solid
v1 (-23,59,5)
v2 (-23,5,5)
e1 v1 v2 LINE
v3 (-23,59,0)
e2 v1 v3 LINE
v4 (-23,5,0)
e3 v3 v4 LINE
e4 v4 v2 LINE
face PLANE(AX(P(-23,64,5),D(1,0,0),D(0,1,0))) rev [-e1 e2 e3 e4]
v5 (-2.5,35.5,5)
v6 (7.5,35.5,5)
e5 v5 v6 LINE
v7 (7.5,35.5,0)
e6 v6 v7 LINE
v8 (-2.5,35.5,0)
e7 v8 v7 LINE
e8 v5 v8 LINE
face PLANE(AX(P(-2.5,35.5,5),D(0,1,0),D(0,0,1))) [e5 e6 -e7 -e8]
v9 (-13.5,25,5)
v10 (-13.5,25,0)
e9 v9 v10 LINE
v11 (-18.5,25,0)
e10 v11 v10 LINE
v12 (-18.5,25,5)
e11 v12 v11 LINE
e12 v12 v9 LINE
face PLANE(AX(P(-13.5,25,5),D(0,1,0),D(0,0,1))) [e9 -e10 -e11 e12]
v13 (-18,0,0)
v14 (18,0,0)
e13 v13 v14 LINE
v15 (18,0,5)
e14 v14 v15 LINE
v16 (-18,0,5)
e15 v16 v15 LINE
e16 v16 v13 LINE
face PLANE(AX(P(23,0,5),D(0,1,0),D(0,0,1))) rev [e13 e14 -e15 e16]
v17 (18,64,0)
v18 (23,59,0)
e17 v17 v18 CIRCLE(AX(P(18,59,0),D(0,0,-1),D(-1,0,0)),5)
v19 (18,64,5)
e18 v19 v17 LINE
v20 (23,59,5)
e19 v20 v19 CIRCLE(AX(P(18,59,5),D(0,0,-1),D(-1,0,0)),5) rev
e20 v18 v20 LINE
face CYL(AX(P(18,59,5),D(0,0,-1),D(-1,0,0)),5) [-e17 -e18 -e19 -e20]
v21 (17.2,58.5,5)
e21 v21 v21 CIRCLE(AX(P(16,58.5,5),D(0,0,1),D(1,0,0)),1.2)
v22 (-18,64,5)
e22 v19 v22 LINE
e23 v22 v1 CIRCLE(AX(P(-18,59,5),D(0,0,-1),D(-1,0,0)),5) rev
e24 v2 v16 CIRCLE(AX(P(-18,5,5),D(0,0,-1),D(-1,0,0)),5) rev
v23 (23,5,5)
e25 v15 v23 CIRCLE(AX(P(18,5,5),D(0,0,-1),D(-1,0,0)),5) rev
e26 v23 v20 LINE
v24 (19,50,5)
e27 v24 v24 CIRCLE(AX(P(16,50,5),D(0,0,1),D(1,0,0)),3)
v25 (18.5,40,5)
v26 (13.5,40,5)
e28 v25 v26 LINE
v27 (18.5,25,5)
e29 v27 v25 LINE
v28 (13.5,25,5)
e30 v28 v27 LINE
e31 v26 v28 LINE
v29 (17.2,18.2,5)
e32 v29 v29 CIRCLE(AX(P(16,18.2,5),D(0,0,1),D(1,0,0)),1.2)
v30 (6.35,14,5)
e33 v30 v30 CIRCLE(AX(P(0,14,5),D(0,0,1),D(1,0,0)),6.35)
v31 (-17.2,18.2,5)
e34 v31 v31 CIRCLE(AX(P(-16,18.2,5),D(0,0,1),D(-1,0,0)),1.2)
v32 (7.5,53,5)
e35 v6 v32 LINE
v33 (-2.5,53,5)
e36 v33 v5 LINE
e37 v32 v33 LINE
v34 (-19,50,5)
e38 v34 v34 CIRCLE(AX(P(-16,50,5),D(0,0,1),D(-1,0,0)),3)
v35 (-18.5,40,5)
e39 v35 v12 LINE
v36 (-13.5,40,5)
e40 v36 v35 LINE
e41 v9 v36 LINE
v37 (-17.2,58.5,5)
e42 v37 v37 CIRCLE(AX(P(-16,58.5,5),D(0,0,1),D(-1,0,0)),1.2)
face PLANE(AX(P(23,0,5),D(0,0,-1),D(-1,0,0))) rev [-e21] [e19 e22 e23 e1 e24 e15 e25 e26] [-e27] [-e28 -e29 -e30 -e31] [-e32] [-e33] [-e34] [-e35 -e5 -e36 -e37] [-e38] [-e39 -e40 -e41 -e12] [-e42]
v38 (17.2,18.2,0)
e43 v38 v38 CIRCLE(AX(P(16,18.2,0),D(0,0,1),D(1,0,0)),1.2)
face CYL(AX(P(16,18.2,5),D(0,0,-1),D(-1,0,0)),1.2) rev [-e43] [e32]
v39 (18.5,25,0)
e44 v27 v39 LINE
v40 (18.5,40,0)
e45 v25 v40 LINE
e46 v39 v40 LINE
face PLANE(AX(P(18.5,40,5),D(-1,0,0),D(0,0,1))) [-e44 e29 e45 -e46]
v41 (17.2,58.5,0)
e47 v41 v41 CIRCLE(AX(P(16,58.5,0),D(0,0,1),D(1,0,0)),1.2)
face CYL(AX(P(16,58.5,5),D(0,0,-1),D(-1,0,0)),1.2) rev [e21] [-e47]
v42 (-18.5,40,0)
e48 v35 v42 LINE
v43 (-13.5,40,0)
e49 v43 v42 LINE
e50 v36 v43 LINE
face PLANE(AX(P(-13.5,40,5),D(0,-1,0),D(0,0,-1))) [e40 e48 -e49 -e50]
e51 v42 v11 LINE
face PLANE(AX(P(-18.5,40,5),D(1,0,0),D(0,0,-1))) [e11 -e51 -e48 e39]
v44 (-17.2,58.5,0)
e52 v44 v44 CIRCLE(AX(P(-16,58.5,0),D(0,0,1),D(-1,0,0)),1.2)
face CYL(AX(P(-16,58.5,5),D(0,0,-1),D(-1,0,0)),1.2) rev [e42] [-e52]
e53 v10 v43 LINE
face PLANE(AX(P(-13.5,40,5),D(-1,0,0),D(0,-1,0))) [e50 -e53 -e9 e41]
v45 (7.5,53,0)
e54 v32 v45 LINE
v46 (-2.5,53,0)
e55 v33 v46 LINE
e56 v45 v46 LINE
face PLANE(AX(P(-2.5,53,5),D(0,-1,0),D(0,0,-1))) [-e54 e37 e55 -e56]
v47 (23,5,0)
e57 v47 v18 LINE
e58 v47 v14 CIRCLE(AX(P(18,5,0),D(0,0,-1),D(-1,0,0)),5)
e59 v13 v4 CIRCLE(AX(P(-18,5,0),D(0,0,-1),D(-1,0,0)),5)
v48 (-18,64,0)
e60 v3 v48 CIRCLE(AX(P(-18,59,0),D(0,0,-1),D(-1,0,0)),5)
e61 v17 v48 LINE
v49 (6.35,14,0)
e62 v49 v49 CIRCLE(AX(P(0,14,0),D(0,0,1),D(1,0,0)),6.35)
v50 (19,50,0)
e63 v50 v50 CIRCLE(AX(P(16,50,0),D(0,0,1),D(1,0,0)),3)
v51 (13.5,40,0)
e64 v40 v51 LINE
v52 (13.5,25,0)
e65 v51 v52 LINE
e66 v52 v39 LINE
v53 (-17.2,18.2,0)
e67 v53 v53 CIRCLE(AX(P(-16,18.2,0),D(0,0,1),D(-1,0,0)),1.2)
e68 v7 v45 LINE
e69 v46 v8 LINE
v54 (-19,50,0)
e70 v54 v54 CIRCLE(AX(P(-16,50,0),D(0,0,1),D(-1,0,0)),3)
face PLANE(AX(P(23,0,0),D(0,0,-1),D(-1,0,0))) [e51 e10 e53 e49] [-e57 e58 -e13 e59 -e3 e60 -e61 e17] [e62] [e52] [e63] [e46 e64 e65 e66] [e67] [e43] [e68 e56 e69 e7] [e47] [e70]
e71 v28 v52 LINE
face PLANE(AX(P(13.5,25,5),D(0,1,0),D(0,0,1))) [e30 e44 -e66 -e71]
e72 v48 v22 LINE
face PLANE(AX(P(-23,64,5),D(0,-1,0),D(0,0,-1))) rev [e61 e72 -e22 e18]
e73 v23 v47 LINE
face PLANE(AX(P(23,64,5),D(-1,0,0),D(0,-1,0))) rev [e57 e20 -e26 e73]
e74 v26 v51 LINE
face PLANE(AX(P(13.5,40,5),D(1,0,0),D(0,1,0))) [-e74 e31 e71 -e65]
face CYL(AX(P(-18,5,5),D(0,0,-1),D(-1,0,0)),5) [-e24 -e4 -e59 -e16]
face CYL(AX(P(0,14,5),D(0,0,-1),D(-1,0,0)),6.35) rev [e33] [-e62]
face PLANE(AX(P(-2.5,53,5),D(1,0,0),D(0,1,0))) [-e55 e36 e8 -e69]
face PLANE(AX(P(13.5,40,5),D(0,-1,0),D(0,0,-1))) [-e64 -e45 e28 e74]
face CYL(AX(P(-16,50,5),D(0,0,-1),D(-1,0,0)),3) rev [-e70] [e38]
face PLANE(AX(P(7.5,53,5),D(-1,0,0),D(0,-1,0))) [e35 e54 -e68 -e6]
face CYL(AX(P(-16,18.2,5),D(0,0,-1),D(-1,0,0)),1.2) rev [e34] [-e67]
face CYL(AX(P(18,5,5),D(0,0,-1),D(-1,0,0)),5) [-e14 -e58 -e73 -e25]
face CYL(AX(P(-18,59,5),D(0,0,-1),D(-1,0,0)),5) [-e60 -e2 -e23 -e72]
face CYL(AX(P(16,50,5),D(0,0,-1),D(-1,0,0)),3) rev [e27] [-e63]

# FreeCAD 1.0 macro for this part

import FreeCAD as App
import Part
import Sketcher


def edges_at(feature, points):
    """Names of the edges that pass closest to the given points."""
    edges = feature.Shape.Edges
    near = lambda p: min(range(len(edges)), key=lambda i: edges[i].distToShape(Part.Vertex(*p))[0])
    return sorted({f"Edge{near(p) + 1}" for p in points})


def add_polygon(sketch, points):
    """Adds a closed chain of lines whose ends are joined by coincident constraints."""
    first, n = sketch.GeometryCount, len(points)
    for a, b in zip(points, points[1:] + points[:1]):
        sketch.addGeometry(Part.LineSegment(App.Vector(*a, 0), App.Vector(*b, 0)), False)
    for i in range(n):
        sketch.addConstraint(Sketcher.Constraint("Coincident", first + i, 2, first + (i + 1) % n, 1))

doc = App.newDocument("Part")
body = doc.addObject("PartDesign::Body", "Body")

sketch1 = body.newObject("Sketcher::SketchObject", "Sketch")
sketch1.AttachmentSupport = (doc.getObject("XY_Plane"), [""])
sketch1.MapMode = "FlatFace"
add_polygon(sketch1, [(-23, 64), (-23, 0), (23, 0), (23, 64)])
sketch1.addGeometry(Part.Circle(App.Vector(-16, 18.2, 0), App.Vector(0, 0, 1), 1.2), False)
add_polygon(sketch1, [(-13.5, 25), (-18.5, 25), (-18.5, 40), (-13.5, 40)])
sketch1.addGeometry(Part.Circle(App.Vector(0, 14, 0), App.Vector(0, 0, 1), 6.3), False)
sketch1.addGeometry(Part.Circle(App.Vector(16, 18.2, 0), App.Vector(0, 0, 1), 1.2), False)
add_polygon(sketch1, [(18.5, 25), (13.5, 25), (13.5, 40), (18.5, 40)])
sketch1.addGeometry(Part.Circle(App.Vector(-16, 50, 0), App.Vector(0, 0, 1), 3), False)
sketch1.addGeometry(Part.Circle(App.Vector(-16, 58.5, 0), App.Vector(0, 0, 1), 1.2), False)
add_polygon(sketch1, [(7.5, 35.5), (-2.5, 35.5), (-2.5, 53), (7.5, 53)])
sketch1.addGeometry(Part.Circle(App.Vector(16, 50, 0), App.Vector(0, 0, 1), 3), False)
sketch1.addGeometry(Part.Circle(App.Vector(16, 58.5, 0), App.Vector(0, 0, 1), 1.2), False)
sketch1.addConstraint(Sketcher.Constraint("Vertical", 0))
sketch1.addConstraint(Sketcher.Constraint("Horizontal", 1))
sketch1.addConstraint(Sketcher.Constraint("Vertical", 2))
sketch1.addConstraint(Sketcher.Constraint("Horizontal", 3))
sketch1.addConstraint(Sketcher.Constraint("Horizontal", 5))
sketch1.addConstraint(Sketcher.Constraint("Vertical", 6))
sketch1.addConstraint(Sketcher.Constraint("Horizontal", 7))
sketch1.addConstraint(Sketcher.Constraint("Vertical", 8))
sketch1.addConstraint(Sketcher.Constraint("Horizontal", 11))
sketch1.addConstraint(Sketcher.Constraint("Vertical", 12))
sketch1.addConstraint(Sketcher.Constraint("Horizontal", 13))
sketch1.addConstraint(Sketcher.Constraint("Vertical", 14))
sketch1.addConstraint(Sketcher.Constraint("Horizontal", 17))
sketch1.addConstraint(Sketcher.Constraint("Vertical", 18))
sketch1.addConstraint(Sketcher.Constraint("Horizontal", 19))
sketch1.addConstraint(Sketcher.Constraint("Vertical", 20))
sketch1.addConstraint(Sketcher.Constraint("Equal", 4, 10))
sketch1.addConstraint(Sketcher.Constraint("Equal", 10, 16))
sketch1.addConstraint(Sketcher.Constraint("Equal", 15, 21))
sketch1.addConstraint(Sketcher.Constraint("Equal", 16, 22))
sketch1.addConstraint(Sketcher.Constraint("Symmetric", 0, 2, 1, 2, -1, 1))
sketch1.addConstraint(Sketcher.Constraint("Symmetric", 4, 3, 10, 3, -2))
sketch1.addConstraint(Sketcher.Constraint("Symmetric", 15, 3, 21, 3, -2))
sketch1.addConstraint(Sketcher.Constraint("Symmetric", 16, 3, 22, 3, -2))
sketch1.addConstraint(Sketcher.Constraint("Symmetric", 8, 2, 11, 2, -2))
sketch1.addConstraint(Sketcher.Constraint("Symmetric", 6, 2, 13, 2, -2))
sketch1.addConstraint(Sketcher.Constraint("PointOnObject", 9, 3, -2))
sketch1.addConstraint(Sketcher.Constraint("Vertical", 4, 3, 15, 3))
sketch1.addConstraint(Sketcher.Constraint("Vertical", 15, 3, 16, 3))
sketch1.addConstraint(Sketcher.Constraint("Diameter", 15, 6.0))
sketch1.addConstraint(Sketcher.Constraint("Diameter", 4, 2.4))
sketch1.addConstraint(Sketcher.Constraint("Diameter", 9, 12.7))
sketch1.addConstraint(Sketcher.Constraint("DistanceX", 1, 1, 1, 2, 46.0))
sketch1.addConstraint(Sketcher.Constraint("DistanceX", 5, 2, 5, 1, 5.0))
sketch1.addConstraint(Sketcher.Constraint("DistanceX", 17, 2, 17, 1, 10.0))
sketch1.addConstraint(Sketcher.Constraint("DistanceY", 0, 2, 0, 1, 64.0))
sketch1.addConstraint(Sketcher.Constraint("DistanceY", 6, 1, 6, 2, 15.0))
sketch1.addConstraint(Sketcher.Constraint("DistanceY", 18, 1, 18, 2, 17.5))
sketch1.addConstraint(Sketcher.Constraint("DistanceX", 4, 3, -1, 1, 16.0))
sketch1.addConstraint(Sketcher.Constraint("DistanceY", -1, 1, 9, 3, 14.0))
sketch1.addConstraint(Sketcher.Constraint("DistanceY", -1, 1, 15, 3, 50.0))
sketch1.addConstraint(Sketcher.Constraint("DistanceY", -1, 1, 5, 2, 25.0))
sketch1.addConstraint(Sketcher.Constraint("DistanceY", -1, 1, 18, 2, 53.0))
sketch1.addConstraint(Sketcher.Constraint("DistanceX", 8, 2, 11, 2, 27.0))
sketch1.addConstraint(Sketcher.Constraint("DistanceX", 7, 2, 17, 2, 11.0))
sketch1.addConstraint(Sketcher.Constraint("DistanceY", -1, 1, 4, 3, 18.2))
sketch1.addConstraint(Sketcher.Constraint("DistanceY", -1, 1, 16, 3, 58.5))
pad1 = body.newObject("PartDesign::Pad", "Pad")
pad1.Profile = sketch1
pad1.Length = 5
doc.recompute()

fillet = body.newObject("PartDesign::Fillet", "Fillet")
fillet.Base = (pad1, edges_at(pad1, [
    (23, 0, 2.5),
    (-23, 0, 2.5),
    (-23, 64, 2.5),
    (23, 64, 2.5),
]))
fillet.Radius = 5

doc.recompute()
